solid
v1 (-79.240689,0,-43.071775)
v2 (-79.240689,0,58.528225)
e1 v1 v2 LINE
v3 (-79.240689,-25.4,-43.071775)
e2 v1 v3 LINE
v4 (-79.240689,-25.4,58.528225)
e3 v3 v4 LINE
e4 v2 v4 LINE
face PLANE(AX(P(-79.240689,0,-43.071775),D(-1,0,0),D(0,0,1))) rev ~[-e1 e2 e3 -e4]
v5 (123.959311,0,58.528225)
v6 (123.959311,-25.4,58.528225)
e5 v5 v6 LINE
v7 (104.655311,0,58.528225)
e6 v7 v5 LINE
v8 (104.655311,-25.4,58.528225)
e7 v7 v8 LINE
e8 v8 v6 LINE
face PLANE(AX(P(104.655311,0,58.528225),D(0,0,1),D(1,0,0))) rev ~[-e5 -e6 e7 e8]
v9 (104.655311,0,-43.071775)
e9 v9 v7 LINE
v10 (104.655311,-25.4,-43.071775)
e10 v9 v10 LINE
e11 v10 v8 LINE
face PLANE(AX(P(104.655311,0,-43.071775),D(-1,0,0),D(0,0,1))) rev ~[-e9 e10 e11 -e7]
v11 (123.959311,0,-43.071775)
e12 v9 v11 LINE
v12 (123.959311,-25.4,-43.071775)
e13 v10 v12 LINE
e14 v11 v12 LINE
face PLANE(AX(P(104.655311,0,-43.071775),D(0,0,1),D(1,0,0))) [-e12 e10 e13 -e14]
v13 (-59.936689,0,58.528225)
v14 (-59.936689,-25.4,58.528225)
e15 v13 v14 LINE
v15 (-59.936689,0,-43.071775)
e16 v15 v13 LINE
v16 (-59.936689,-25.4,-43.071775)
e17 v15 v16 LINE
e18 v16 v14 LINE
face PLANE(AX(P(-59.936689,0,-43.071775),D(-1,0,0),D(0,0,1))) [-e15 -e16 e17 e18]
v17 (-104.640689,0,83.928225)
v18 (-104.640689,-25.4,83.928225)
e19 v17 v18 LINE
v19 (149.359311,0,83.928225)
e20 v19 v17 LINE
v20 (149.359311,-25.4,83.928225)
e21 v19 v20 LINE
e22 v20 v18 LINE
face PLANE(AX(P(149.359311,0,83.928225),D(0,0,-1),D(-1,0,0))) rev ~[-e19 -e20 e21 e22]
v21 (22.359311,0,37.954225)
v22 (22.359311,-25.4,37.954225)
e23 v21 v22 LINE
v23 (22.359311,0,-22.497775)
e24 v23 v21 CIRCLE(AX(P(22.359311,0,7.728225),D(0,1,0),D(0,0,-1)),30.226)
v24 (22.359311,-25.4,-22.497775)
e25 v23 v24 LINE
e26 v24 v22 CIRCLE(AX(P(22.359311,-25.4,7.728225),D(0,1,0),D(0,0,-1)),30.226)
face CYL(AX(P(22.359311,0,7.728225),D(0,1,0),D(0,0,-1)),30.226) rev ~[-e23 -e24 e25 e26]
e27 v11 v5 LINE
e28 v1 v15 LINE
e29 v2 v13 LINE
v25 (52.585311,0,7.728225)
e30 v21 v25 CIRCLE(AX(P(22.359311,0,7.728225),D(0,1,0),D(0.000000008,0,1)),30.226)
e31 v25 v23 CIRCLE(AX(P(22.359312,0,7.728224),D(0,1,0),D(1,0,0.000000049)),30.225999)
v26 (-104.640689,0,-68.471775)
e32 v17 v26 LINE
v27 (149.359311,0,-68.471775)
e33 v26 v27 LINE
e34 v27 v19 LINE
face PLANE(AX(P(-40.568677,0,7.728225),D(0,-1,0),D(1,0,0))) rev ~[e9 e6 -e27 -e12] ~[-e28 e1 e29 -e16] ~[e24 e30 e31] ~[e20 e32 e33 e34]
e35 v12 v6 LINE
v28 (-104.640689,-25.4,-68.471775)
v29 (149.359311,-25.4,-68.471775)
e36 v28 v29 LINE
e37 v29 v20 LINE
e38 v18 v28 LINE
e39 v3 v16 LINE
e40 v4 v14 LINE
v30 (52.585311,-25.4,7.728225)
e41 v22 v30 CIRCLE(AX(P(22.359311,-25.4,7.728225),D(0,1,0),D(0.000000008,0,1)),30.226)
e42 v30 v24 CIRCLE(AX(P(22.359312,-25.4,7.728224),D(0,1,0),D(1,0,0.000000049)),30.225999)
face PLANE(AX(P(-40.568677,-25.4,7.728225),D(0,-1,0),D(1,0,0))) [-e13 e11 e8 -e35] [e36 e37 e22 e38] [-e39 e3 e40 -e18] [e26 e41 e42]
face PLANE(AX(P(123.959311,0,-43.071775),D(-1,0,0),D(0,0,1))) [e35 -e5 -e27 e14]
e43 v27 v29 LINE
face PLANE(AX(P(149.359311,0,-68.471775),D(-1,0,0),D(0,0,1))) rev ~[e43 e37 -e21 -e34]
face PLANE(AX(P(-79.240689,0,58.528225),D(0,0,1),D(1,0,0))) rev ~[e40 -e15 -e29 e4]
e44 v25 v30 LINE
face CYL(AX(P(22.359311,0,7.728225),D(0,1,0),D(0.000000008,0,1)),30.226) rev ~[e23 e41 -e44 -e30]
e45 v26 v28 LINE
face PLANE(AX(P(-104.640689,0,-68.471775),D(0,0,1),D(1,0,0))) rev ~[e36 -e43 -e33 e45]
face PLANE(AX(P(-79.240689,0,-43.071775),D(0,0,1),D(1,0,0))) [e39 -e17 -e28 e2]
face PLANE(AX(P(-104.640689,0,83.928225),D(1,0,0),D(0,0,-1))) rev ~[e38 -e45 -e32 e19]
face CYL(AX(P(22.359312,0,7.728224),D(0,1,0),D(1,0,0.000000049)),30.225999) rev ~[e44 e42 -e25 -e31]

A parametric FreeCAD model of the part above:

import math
import FreeCAD as App
import Part
import Sketcher
Q = App.Units.Quantity


def add_polygon(sketch, points):
    """Adds a closed chain of lines whose ends are joined by coincident constraints."""
    first, n = sketch.GeometryCount, len(points)
    for a, b in zip(points, points[1:] + points[:1]):
        sketch.addGeometry(Part.LineSegment(App.Vector(*a, 0), App.Vector(*b, 0)), False)
    for i in range(n):
        sketch.addConstraint(Sketcher.Constraint("Coincident", first + i, 2, first + (i + 1) % n, 1))

doc = App.newDocument("Part")
body = doc.addObject("PartDesign::Body", "Body")

# Sketch on XZ plane
sketch1 = body.newObject("Sketcher::SketchObject", "Sketch")
sketch1.AttachmentSupport = (doc.getObject("XZ_Plane"), [""])
sketch1.MapMode = "FlatFace"
add_polygon(sketch1, [(-104.640689, 83.928225), (-104.640689, -68.471775), (149.359311, -68.471775), (149.359311, 83.928225)])  # lines 0-3
add_polygon(sketch1, [(-59.936689, -43.071775), (-79.240689, -43.071775), (-79.240689, 58.528225), (-59.936689, 58.528225)])  # lines 4-7
sketch1.addGeometry(Part.ArcOfCircle(Part.Circle(App.Vector(22.359311, 7.728225, 0), App.Vector(0, 0, 1), 30.226), math.radians(90), math.radians(270)), False)  # 8
sketch1.addGeometry(Part.ArcOfCircle(Part.Circle(App.Vector(22.359311, 7.728225, 0), App.Vector(0, 0, 1), 30.226), math.radians(0), math.radians(90)), False)  # 9
sketch1.addGeometry(Part.ArcOfCircle(Part.Circle(App.Vector(22.359312, 7.728224, 0), App.Vector(0, 0, 1), 30.225999), math.radians(-90.000003), math.radians(0.000003)), False)  # 10
add_polygon(sketch1, [(123.959311, -43.071775), (104.655311, -43.071775), (104.655311, 58.528225), (123.959311, 58.528225)])  # lines 11-14
sketch1.addConstraint(Sketcher.Constraint("Tangent", 8, 1, 9, 2))
sketch1.addConstraint(Sketcher.Constraint("Tangent", 9, 1, 10, 2))
sketch1.addConstraint(Sketcher.Constraint("Tangent", 10, 1, 8, 2))
sketch1.addConstraint(Sketcher.Constraint("Vertical", 0))
sketch1.addConstraint(Sketcher.Constraint("Horizontal", 1))
sketch1.addConstraint(Sketcher.Constraint("Vertical", 2))
sketch1.addConstraint(Sketcher.Constraint("Horizontal", 3))
sketch1.addConstraint(Sketcher.Constraint("Horizontal", 4))
sketch1.addConstraint(Sketcher.Constraint("Vertical", 5))
sketch1.addConstraint(Sketcher.Constraint("Horizontal", 6))
sketch1.addConstraint(Sketcher.Constraint("Vertical", 7))
sketch1.addConstraint(Sketcher.Constraint("Horizontal", 11))
sketch1.addConstraint(Sketcher.Constraint("Vertical", 12))
sketch1.addConstraint(Sketcher.Constraint("Horizontal", 13))
sketch1.addConstraint(Sketcher.Constraint("Vertical", 14))
sketch1.addConstraint(Sketcher.Constraint("Horizontal", 10, 3, 9, 1))
sketch1.addConstraint(Sketcher.Constraint("Horizontal", 7, 2, 11, 2))
sketch1.addConstraint(Sketcher.Constraint("Horizontal", 6, 2, 12, 2))
sketch1.addConstraint(Sketcher.Constraint("Vertical", 10, 3, 8, 1))
sketch1.addConstraint(Sketcher.Constraint("Vertical", 8, 1, 10, 1))
sketch1.addConstraint(Sketcher.Constraint("Equal", 6, 11))
sketch1.addConstraint(Sketcher.Constraint("DistanceX", 1, 1, 1, 2, Q("10 in")))
sketch1.addConstraint(Sketcher.Constraint("DistanceY", 0, 2, 0, 1, Q("6 in")))
sketch1.addConstraint(Sketcher.Constraint("DistanceY", 5, 1, 5, 2, Q("4 in")))
sketch1.addConstraint(Sketcher.Constraint("Radius", 8, Q("1.19 in")))
sketch1.addConstraint(Sketcher.Constraint("DistanceX", 0, 2, 9, 3, Q("5 in")))
sketch1.addConstraint(Sketcher.Constraint("DistanceY", 0, 2, 9, 3, Q("3 in")))
sketch1.addConstraint(Sketcher.Constraint("DistanceX", 0, 2, 4, 2, Q("1 in")))
sketch1.addConstraint(Sketcher.Constraint("DistanceY", 0, 2, 4, 2, Q("1 in")))
sketch1.addConstraint(Sketcher.Constraint("DistanceX", 13, 2, 2, 2, Q("1 in")))
sketch1.addConstraint(Sketcher.Constraint("DistanceX", 4, 2, 4, 1, Q("0.76 in")))
sketch1.addConstraint(Sketcher.Constraint("DistanceX", -1, 1, 8, 3, Q("22.359311 mm")))
sketch1.addConstraint(Sketcher.Constraint("DistanceY", -1, 1, 8, 3, Q("7.728225 mm")))
pad1 = body.newObject("PartDesign::Pad", "Pad")
pad1.Profile = sketch1
pad1.Length = Q("1 in")

doc.recompute()
